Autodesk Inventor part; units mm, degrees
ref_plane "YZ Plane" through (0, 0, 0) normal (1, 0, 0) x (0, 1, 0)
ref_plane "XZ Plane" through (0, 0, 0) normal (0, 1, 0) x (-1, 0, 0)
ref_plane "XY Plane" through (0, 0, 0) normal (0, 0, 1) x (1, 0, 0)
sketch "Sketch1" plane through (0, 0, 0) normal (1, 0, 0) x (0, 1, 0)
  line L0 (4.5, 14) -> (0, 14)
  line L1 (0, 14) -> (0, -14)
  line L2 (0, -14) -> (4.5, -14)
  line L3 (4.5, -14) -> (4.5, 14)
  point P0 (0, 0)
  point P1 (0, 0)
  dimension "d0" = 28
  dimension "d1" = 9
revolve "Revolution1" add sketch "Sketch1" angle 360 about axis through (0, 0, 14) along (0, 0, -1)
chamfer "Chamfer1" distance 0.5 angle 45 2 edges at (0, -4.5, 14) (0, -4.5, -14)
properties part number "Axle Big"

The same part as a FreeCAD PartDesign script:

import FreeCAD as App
import Part
import Sketcher
Q = App.Units.Quantity


def edges_at(feature, points):
    """Names of the edges that pass closest to the given points."""
    edges = feature.Shape.Edges
    near = lambda p: min(range(len(edges)), key=lambda i: edges[i].distToShape(Part.Vertex(*p))[0])
    return sorted({f"Edge{near(p) + 1}" for p in points})

doc = App.newDocument("Part")
params = doc.addObject("Spreadsheet::Sheet", "Params")
for row, (alias, value) in enumerate([
    ("sketch1_height", "28 mm"),
    ("sketch1_width", "4.5 mm"),
    ("revolution_angle", "360 deg"),
    ("chamfer_size", "0.5 mm"),
], start=1):
    params.set(f"A{row}", alias)
    params.set(f"B{row}", "=" + value)
    params.setAlias(f"B{row}", alias)

body = doc.addObject("PartDesign::Body", "Body")

# Sketch on YZ plane
sketch1 = body.newObject("Sketcher::SketchObject", "Sketch")
sketch1.AttachmentSupport = (doc.getObject("YZ_Plane"), [""])
sketch1.MapMode = "FlatFace"
sketch1.addGeometry(Part.LineSegment(App.Vector(4.5, -14, 0), App.Vector(4.5, 14, 0)), False)
sketch1.addGeometry(Part.LineSegment(App.Vector(4.5, 14, 0), App.Vector(0, 14, 0)), False)
sketch1.addGeometry(Part.LineSegment(App.Vector(0, 14, 0), App.Vector(0, -14, 0)), False)
sketch1.addGeometry(Part.LineSegment(App.Vector(0, -14, 0), App.Vector(4.5, -14, 0)), False)
sketch1.addConstraint(Sketcher.Constraint("Coincident", 0, 2, 1, 1))
sketch1.addConstraint(Sketcher.Constraint("Coincident", 1, 2, 2, 1))
sketch1.addConstraint(Sketcher.Constraint("Coincident", 2, 2, 3, 1))
sketch1.addConstraint(Sketcher.Constraint("Coincident", 3, 2, 0, 1))
sketch1.addConstraint(Sketcher.Constraint("Vertical", 0))
sketch1.addConstraint(Sketcher.Constraint("Horizontal", 1))
sketch1.addConstraint(Sketcher.Constraint("Vertical", 2))
sketch1.addConstraint(Sketcher.Constraint("Horizontal", 3))
sketch1.addConstraint(Sketcher.Constraint("Symmetric", 1, 2, 2, 2, -1, 1))
sketch1.addConstraint(Sketcher.Constraint("DistanceY", 0, 1, 0, 2, Q("28 mm")))
sketch1.addConstraint(Sketcher.Constraint("DistanceX", 1, 2, 1, 1, Q("4.5 mm")))
sketch1.setExpression("Constraints[9]", "Params.sketch1_height")
sketch1.setExpression("Constraints[10]", "Params.sketch1_width")
revolution = body.newObject("PartDesign::Revolution", "Revolution")
revolution.Profile = sketch1
revolution.ReferenceAxis = (sketch1, ["V_Axis"])
revolution.setExpression("Angle", "Params.revolution_angle")
doc.recompute()

chamfer = body.newObject("PartDesign::Chamfer", "Chamfer")
chamfer.Base = (revolution, edges_at(revolution, [(0, -4.5, 14), (0, -4.5, -14)]))
chamfer.setExpression("Size", "Params.chamfer_size")

doc.recompute()
